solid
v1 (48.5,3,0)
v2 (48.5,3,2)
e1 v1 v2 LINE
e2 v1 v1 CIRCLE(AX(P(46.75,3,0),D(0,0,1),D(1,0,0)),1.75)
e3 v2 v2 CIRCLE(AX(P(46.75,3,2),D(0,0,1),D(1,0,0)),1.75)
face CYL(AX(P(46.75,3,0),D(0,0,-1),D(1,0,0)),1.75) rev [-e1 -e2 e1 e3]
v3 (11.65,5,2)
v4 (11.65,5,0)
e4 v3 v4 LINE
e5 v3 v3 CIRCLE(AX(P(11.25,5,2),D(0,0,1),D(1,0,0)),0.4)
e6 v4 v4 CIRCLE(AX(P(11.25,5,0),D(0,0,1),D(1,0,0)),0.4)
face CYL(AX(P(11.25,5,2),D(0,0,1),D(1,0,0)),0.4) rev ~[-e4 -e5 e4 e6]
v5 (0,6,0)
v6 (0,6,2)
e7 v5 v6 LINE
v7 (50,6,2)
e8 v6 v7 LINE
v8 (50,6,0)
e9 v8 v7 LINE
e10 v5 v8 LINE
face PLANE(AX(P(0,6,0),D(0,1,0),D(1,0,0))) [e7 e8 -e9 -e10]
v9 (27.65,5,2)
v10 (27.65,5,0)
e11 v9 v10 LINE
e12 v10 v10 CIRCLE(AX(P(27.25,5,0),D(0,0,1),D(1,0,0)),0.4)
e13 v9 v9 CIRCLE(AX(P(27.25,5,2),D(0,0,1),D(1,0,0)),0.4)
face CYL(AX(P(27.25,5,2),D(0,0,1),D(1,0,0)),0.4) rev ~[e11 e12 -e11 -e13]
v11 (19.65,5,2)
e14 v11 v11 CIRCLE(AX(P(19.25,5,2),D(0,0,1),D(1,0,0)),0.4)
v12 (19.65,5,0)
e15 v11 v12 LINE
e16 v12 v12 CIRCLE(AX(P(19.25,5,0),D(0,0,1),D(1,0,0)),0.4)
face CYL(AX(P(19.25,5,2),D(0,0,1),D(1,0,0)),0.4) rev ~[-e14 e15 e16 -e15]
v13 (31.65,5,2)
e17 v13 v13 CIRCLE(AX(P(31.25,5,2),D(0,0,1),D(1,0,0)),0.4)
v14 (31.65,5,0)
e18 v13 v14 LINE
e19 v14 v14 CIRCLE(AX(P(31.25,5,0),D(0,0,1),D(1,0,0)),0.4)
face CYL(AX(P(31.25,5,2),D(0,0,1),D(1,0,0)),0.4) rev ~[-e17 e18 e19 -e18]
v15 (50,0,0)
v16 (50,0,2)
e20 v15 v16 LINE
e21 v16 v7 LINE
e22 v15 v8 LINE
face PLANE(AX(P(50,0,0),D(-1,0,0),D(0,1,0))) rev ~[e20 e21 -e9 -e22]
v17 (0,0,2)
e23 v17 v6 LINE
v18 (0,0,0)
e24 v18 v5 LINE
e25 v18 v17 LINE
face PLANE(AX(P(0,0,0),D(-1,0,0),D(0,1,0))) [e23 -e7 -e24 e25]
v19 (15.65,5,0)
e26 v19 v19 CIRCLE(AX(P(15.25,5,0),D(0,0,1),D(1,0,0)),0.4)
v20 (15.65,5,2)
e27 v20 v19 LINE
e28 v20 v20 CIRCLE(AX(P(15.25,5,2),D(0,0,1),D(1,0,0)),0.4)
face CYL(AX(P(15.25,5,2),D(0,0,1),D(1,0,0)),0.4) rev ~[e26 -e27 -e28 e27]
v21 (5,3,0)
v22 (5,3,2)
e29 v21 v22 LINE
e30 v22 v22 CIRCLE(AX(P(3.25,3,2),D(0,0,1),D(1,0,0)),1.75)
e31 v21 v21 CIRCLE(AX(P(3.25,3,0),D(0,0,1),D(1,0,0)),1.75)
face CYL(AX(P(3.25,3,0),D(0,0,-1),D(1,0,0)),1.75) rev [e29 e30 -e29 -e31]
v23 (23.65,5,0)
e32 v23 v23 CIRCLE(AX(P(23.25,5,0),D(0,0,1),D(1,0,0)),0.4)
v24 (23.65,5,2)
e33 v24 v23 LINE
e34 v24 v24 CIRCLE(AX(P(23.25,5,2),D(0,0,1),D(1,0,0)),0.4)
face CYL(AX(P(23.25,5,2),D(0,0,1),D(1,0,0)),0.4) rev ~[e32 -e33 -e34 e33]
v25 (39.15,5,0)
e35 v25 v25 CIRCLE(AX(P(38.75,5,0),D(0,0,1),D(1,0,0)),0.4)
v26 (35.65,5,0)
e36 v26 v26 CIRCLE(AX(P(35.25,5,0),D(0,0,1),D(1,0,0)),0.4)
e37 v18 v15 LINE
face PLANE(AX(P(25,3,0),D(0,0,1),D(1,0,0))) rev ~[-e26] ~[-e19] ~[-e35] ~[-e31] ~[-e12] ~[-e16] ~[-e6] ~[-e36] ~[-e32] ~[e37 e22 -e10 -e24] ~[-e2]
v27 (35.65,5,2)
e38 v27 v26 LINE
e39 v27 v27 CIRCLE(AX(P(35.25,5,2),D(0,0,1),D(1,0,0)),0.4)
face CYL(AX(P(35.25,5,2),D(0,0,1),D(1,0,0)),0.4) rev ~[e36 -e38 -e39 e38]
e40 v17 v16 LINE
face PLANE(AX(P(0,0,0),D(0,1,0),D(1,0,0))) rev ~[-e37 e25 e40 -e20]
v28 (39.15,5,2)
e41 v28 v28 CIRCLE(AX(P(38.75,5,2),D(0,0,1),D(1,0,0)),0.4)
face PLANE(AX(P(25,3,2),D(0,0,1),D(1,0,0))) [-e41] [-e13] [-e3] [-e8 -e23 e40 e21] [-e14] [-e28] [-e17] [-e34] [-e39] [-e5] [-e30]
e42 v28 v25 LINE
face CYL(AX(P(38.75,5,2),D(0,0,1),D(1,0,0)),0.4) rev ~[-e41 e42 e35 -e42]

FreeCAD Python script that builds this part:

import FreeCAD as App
import Part
import Sketcher

V = App.Vector
Q = App.Units.Quantity

doc = App.newDocument("Part")
body = doc.addObject("PartDesign::Body", "Body")

# Sketch on XY plane
sketch1 = body.newObject("Sketcher::SketchObject", "Sketch")
sketch1.AttachmentSupport = (doc.getObject("XY_Plane"), [""])
sketch1.MapMode = "FlatFace"
sketch1.addGeometry([
    Part.LineSegment(V(0, 6, 0), V(0, 0, 0)),  # 0
    Part.LineSegment(V(0, 0, 0), V(50, 0, 0)),  # 1
    Part.LineSegment(V(50, 0, 0), V(50, 6, 0)),  # 2
    Part.LineSegment(V(50, 6, 0), V(0, 6, 0)),  # 3
    Part.Circle(V(3.25, 3, 0), V(0, 0, 1), 1.75),  # 4
    Part.Circle(V(46.75, 3, 0), V(0, 0, 1), 1.75),  # 5
], False)
sketch1.addConstraint([
    Sketcher.Constraint("Coincident", 0, 2, 1, 1),
    Sketcher.Constraint("Coincident", 1, 2, 2, 1),
    Sketcher.Constraint("Coincident", 2, 2, 3, 1),
    Sketcher.Constraint("Coincident", 3, 2, 0, 1),
    Sketcher.Constraint("Vertical", 0),
    Sketcher.Constraint("Horizontal", 1),
    Sketcher.Constraint("Vertical", 2),
    Sketcher.Constraint("Horizontal", 3),
    Sketcher.Constraint("Coincident", 0, 2, -1, 1),
    Sketcher.Constraint("Equal", 4, 5),
    Sketcher.Constraint("Horizontal", 4, 3, 5, 3),
    Sketcher.Constraint("Diameter", 4, Q("3.5 mm")),
    Sketcher.Constraint("DistanceX", 1, 1, 1, 2, Q("50 mm")),
    Sketcher.Constraint("DistanceY", 0, 2, 0, 1, Q("6 mm")),
    Sketcher.Constraint("DistanceY", -1, 1, 4, 3, Q("3 mm")),
    Sketcher.Constraint("DistanceX", 4, 3, 5, 3, Q("43.5 mm")),
    Sketcher.Constraint("DistanceX", -1, 1, 4, 3, Q("3.25 mm")),
])
pad1 = body.newObject("PartDesign::Pad", "Pad")
pad1.Profile = sketch1
pad1.Length = 2

# Sketch on XY plane
sketch2 = body.newObject("Sketcher::SketchObject", "Sketch001")
sketch2.AttachmentSupport = (doc.getObject("XY_Plane"), [""])
sketch2.MapMode = "FlatFace"
sketch2.AttachmentOffset = App.Placement(V(0, 0, 2), App.Rotation())
sketch2.addGeometry([
    Part.Circle(V(11.25, 5, 0), V(0, 0, 1), 0.4),  # 0
    Part.Circle(V(15.25, 5, 0), V(0, 0, 1), 0.4),  # 1
    Part.Circle(V(19.25, 5, 0), V(0, 0, 1), 0.4),  # 2
    Part.Circle(V(23.25, 5, 0), V(0, 0, 1), 0.4),  # 3
    Part.Circle(V(27.25, 5, 0), V(0, 0, 1), 0.4),  # 4
    Part.Circle(V(31.25, 5, 0), V(0, 0, 1), 0.4),  # 5
    Part.Circle(V(35.25, 5, 0), V(0, 0, 1), 0.4),  # 6
    Part.Circle(V(38.75, 5, 0), V(0, 0, 1), 0.4),  # 7
], False)
sketch2.addConstraint([
    Sketcher.Constraint("Equal", 0, 1),
    Sketcher.Constraint("Equal", 1, 2),
    Sketcher.Constraint("Equal", 2, 3),
    Sketcher.Constraint("Equal", 3, 4),
    Sketcher.Constraint("Equal", 4, 5),
    Sketcher.Constraint("Equal", 5, 6),
    Sketcher.Constraint("Equal", 6, 7),
    Sketcher.Constraint("Horizontal", 0, 3, 1, 3),
    Sketcher.Constraint("Horizontal", 1, 3, 2, 3),
    Sketcher.Constraint("Horizontal", 2, 3, 3, 3),
    Sketcher.Constraint("Horizontal", 3, 3, 4, 3),
    Sketcher.Constraint("Horizontal", 4, 3, 5, 3),
    Sketcher.Constraint("Horizontal", 5, 3, 6, 3),
    Sketcher.Constraint("Horizontal", 6, 3, 7, 3),
    Sketcher.Constraint("Diameter", 0, Q("0.8 mm")),
    Sketcher.Constraint("DistanceY", -1, 1, 0, 3, Q("5 mm")),
    Sketcher.Constraint("DistanceX", 0, 3, 1, 3, Q("4 mm")),
    Sketcher.Constraint("DistanceX", 1, 3, 2, 3, Q("4 mm")),
    Sketcher.Constraint("DistanceX", 2, 3, 3, 3, Q("4 mm")),
    Sketcher.Constraint("DistanceX", 3, 3, 4, 3, Q("4 mm")),
    Sketcher.Constraint("DistanceX", 4, 3, 5, 3, Q("4 mm")),
    Sketcher.Constraint("DistanceX", 5, 3, 6, 3, Q("4 mm")),
    Sketcher.Constraint("DistanceX", 6, 3, 7, 3, Q("3.5 mm")),
    Sketcher.Constraint("DistanceX", -1, 1, 0, 3, Q("11.25 mm")),
])
pocket1 = body.newObject("PartDesign::Pocket", "Pocket")
pocket1.Profile = sketch2
pocket1.Type = "ThroughAll"

doc.recompute()
